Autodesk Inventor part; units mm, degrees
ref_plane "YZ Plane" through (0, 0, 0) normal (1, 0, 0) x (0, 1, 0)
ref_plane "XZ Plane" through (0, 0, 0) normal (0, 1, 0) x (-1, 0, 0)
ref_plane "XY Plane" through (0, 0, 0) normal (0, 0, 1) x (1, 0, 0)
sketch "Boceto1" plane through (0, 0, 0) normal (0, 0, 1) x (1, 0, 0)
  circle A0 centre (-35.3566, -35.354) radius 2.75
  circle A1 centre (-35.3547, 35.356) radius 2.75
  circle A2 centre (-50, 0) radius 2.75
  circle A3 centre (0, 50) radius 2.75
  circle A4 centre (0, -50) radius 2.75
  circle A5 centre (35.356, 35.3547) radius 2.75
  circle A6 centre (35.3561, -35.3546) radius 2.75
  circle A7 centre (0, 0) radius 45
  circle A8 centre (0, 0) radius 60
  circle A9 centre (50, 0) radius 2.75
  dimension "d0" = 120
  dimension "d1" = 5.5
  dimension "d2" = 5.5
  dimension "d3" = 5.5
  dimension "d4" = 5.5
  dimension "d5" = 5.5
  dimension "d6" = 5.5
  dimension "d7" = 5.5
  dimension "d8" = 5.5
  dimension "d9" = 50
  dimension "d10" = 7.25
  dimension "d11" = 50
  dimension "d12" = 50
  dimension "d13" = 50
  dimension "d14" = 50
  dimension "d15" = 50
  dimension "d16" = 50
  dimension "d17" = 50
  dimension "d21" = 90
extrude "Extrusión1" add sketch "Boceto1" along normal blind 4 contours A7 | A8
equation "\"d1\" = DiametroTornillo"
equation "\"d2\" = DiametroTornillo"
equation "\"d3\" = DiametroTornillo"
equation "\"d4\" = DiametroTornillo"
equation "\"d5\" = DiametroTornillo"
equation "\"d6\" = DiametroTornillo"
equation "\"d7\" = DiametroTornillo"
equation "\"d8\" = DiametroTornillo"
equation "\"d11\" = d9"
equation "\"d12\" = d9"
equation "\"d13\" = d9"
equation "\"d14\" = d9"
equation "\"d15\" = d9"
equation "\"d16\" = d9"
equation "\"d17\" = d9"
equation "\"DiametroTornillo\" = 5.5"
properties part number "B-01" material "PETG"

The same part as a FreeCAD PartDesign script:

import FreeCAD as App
import Part
import Sketcher
from FreeCAD import Vector
Q = App.Units.Quantity

doc = App.newDocument("Part")
body = doc.addObject("PartDesign::Body", "Body")

sketch1 = body.newObject("Sketcher::SketchObject", "Sketch")
sketch1.AttachmentSupport = (doc.getObject("XY_Plane"), [""])
sketch1.MapMode = "FlatFace"
sketch1.addGeometry([
    Part.Circle(Vector(0, 0, 0), Vector(0, 0, 1), 60),
    Part.Circle(Vector(-35.4, -35.4, 0), Vector(0, 0, 1), 2.8),
    Part.Circle(Vector(0, -50, 0), Vector(0, 0, 1), 2.8),
    Part.Circle(Vector(35.4, -35.4, 0), Vector(0, 0, 1), 2.8),
    Part.Circle(Vector(-50, 0, 0), Vector(0, 0, 1), 2.8),
    Part.Circle(Vector(-35.4, 35.4, 0), Vector(0, 0, 1), 2.8),
    Part.Circle(Vector(35.4, 35.4, 0), Vector(0, 0, 1), 2.8),
    Part.Circle(Vector(50, 0, 0), Vector(0, 0, 1), 2.8),
    Part.Circle(Vector(0, 50, 0), Vector(0, 0, 1), 2.8),
], False)
sketch1.addConstraint([
    Sketcher.Constraint("Coincident", 0, 3, -1, 1),
    Sketcher.Constraint("Equal", 1, 2),
    Sketcher.Constraint("Equal", 2, 3),
    Sketcher.Constraint("Equal", 3, 4),
    Sketcher.Constraint("Equal", 4, 5),
    Sketcher.Constraint("Equal", 5, 6),
    Sketcher.Constraint("Equal", 6, 7),
    Sketcher.Constraint("Equal", 7, 8),
    Sketcher.Constraint("Symmetric", 4, 3, 7, 3, -1, 1),
    Sketcher.Constraint("Symmetric", 2, 3, 8, 3, -1, 1),
    Sketcher.Constraint("Symmetric", 3, 3, 6, 3, -1),
    Sketcher.Constraint("PointOnObject", 2, 3, -2),
    Sketcher.Constraint("PointOnObject", 4, 3, -1),
    Sketcher.Constraint("Diameter", 0, Q("120 mm")),
    Sketcher.Constraint("Diameter", 1, Q("5.5 mm")),
    Sketcher.Constraint("DistanceY", 2, 3, -1, 1, Q("50 mm")),
    Sketcher.Constraint("DistanceX", 4, 3, -1, 1, Q("50 mm")),
    Sketcher.Constraint("DistanceY", 1, 3, 5, 3, Q("70.71 mm")),
    Sketcher.Constraint("DistanceY", 1, 3, -1, 1, Q("35.354 mm")),
    Sketcher.Constraint("DistanceX", -1, 1, 3, 3, Q("35.356 mm")),
    Sketcher.Constraint("DistanceX", 1, 3, 5, 3, Q("0.002 mm")),
    Sketcher.Constraint("DistanceX", 1, 3, -1, 1, Q("35.3566 mm")),
    Sketcher.Constraint("DistanceY", 3, 3, -1, 1, Q("35.3546 mm")),
])
pad1 = body.newObject("PartDesign::Pad", "Pad")
pad1.Profile = sketch1
pad1.Length = 4

doc.recompute()
